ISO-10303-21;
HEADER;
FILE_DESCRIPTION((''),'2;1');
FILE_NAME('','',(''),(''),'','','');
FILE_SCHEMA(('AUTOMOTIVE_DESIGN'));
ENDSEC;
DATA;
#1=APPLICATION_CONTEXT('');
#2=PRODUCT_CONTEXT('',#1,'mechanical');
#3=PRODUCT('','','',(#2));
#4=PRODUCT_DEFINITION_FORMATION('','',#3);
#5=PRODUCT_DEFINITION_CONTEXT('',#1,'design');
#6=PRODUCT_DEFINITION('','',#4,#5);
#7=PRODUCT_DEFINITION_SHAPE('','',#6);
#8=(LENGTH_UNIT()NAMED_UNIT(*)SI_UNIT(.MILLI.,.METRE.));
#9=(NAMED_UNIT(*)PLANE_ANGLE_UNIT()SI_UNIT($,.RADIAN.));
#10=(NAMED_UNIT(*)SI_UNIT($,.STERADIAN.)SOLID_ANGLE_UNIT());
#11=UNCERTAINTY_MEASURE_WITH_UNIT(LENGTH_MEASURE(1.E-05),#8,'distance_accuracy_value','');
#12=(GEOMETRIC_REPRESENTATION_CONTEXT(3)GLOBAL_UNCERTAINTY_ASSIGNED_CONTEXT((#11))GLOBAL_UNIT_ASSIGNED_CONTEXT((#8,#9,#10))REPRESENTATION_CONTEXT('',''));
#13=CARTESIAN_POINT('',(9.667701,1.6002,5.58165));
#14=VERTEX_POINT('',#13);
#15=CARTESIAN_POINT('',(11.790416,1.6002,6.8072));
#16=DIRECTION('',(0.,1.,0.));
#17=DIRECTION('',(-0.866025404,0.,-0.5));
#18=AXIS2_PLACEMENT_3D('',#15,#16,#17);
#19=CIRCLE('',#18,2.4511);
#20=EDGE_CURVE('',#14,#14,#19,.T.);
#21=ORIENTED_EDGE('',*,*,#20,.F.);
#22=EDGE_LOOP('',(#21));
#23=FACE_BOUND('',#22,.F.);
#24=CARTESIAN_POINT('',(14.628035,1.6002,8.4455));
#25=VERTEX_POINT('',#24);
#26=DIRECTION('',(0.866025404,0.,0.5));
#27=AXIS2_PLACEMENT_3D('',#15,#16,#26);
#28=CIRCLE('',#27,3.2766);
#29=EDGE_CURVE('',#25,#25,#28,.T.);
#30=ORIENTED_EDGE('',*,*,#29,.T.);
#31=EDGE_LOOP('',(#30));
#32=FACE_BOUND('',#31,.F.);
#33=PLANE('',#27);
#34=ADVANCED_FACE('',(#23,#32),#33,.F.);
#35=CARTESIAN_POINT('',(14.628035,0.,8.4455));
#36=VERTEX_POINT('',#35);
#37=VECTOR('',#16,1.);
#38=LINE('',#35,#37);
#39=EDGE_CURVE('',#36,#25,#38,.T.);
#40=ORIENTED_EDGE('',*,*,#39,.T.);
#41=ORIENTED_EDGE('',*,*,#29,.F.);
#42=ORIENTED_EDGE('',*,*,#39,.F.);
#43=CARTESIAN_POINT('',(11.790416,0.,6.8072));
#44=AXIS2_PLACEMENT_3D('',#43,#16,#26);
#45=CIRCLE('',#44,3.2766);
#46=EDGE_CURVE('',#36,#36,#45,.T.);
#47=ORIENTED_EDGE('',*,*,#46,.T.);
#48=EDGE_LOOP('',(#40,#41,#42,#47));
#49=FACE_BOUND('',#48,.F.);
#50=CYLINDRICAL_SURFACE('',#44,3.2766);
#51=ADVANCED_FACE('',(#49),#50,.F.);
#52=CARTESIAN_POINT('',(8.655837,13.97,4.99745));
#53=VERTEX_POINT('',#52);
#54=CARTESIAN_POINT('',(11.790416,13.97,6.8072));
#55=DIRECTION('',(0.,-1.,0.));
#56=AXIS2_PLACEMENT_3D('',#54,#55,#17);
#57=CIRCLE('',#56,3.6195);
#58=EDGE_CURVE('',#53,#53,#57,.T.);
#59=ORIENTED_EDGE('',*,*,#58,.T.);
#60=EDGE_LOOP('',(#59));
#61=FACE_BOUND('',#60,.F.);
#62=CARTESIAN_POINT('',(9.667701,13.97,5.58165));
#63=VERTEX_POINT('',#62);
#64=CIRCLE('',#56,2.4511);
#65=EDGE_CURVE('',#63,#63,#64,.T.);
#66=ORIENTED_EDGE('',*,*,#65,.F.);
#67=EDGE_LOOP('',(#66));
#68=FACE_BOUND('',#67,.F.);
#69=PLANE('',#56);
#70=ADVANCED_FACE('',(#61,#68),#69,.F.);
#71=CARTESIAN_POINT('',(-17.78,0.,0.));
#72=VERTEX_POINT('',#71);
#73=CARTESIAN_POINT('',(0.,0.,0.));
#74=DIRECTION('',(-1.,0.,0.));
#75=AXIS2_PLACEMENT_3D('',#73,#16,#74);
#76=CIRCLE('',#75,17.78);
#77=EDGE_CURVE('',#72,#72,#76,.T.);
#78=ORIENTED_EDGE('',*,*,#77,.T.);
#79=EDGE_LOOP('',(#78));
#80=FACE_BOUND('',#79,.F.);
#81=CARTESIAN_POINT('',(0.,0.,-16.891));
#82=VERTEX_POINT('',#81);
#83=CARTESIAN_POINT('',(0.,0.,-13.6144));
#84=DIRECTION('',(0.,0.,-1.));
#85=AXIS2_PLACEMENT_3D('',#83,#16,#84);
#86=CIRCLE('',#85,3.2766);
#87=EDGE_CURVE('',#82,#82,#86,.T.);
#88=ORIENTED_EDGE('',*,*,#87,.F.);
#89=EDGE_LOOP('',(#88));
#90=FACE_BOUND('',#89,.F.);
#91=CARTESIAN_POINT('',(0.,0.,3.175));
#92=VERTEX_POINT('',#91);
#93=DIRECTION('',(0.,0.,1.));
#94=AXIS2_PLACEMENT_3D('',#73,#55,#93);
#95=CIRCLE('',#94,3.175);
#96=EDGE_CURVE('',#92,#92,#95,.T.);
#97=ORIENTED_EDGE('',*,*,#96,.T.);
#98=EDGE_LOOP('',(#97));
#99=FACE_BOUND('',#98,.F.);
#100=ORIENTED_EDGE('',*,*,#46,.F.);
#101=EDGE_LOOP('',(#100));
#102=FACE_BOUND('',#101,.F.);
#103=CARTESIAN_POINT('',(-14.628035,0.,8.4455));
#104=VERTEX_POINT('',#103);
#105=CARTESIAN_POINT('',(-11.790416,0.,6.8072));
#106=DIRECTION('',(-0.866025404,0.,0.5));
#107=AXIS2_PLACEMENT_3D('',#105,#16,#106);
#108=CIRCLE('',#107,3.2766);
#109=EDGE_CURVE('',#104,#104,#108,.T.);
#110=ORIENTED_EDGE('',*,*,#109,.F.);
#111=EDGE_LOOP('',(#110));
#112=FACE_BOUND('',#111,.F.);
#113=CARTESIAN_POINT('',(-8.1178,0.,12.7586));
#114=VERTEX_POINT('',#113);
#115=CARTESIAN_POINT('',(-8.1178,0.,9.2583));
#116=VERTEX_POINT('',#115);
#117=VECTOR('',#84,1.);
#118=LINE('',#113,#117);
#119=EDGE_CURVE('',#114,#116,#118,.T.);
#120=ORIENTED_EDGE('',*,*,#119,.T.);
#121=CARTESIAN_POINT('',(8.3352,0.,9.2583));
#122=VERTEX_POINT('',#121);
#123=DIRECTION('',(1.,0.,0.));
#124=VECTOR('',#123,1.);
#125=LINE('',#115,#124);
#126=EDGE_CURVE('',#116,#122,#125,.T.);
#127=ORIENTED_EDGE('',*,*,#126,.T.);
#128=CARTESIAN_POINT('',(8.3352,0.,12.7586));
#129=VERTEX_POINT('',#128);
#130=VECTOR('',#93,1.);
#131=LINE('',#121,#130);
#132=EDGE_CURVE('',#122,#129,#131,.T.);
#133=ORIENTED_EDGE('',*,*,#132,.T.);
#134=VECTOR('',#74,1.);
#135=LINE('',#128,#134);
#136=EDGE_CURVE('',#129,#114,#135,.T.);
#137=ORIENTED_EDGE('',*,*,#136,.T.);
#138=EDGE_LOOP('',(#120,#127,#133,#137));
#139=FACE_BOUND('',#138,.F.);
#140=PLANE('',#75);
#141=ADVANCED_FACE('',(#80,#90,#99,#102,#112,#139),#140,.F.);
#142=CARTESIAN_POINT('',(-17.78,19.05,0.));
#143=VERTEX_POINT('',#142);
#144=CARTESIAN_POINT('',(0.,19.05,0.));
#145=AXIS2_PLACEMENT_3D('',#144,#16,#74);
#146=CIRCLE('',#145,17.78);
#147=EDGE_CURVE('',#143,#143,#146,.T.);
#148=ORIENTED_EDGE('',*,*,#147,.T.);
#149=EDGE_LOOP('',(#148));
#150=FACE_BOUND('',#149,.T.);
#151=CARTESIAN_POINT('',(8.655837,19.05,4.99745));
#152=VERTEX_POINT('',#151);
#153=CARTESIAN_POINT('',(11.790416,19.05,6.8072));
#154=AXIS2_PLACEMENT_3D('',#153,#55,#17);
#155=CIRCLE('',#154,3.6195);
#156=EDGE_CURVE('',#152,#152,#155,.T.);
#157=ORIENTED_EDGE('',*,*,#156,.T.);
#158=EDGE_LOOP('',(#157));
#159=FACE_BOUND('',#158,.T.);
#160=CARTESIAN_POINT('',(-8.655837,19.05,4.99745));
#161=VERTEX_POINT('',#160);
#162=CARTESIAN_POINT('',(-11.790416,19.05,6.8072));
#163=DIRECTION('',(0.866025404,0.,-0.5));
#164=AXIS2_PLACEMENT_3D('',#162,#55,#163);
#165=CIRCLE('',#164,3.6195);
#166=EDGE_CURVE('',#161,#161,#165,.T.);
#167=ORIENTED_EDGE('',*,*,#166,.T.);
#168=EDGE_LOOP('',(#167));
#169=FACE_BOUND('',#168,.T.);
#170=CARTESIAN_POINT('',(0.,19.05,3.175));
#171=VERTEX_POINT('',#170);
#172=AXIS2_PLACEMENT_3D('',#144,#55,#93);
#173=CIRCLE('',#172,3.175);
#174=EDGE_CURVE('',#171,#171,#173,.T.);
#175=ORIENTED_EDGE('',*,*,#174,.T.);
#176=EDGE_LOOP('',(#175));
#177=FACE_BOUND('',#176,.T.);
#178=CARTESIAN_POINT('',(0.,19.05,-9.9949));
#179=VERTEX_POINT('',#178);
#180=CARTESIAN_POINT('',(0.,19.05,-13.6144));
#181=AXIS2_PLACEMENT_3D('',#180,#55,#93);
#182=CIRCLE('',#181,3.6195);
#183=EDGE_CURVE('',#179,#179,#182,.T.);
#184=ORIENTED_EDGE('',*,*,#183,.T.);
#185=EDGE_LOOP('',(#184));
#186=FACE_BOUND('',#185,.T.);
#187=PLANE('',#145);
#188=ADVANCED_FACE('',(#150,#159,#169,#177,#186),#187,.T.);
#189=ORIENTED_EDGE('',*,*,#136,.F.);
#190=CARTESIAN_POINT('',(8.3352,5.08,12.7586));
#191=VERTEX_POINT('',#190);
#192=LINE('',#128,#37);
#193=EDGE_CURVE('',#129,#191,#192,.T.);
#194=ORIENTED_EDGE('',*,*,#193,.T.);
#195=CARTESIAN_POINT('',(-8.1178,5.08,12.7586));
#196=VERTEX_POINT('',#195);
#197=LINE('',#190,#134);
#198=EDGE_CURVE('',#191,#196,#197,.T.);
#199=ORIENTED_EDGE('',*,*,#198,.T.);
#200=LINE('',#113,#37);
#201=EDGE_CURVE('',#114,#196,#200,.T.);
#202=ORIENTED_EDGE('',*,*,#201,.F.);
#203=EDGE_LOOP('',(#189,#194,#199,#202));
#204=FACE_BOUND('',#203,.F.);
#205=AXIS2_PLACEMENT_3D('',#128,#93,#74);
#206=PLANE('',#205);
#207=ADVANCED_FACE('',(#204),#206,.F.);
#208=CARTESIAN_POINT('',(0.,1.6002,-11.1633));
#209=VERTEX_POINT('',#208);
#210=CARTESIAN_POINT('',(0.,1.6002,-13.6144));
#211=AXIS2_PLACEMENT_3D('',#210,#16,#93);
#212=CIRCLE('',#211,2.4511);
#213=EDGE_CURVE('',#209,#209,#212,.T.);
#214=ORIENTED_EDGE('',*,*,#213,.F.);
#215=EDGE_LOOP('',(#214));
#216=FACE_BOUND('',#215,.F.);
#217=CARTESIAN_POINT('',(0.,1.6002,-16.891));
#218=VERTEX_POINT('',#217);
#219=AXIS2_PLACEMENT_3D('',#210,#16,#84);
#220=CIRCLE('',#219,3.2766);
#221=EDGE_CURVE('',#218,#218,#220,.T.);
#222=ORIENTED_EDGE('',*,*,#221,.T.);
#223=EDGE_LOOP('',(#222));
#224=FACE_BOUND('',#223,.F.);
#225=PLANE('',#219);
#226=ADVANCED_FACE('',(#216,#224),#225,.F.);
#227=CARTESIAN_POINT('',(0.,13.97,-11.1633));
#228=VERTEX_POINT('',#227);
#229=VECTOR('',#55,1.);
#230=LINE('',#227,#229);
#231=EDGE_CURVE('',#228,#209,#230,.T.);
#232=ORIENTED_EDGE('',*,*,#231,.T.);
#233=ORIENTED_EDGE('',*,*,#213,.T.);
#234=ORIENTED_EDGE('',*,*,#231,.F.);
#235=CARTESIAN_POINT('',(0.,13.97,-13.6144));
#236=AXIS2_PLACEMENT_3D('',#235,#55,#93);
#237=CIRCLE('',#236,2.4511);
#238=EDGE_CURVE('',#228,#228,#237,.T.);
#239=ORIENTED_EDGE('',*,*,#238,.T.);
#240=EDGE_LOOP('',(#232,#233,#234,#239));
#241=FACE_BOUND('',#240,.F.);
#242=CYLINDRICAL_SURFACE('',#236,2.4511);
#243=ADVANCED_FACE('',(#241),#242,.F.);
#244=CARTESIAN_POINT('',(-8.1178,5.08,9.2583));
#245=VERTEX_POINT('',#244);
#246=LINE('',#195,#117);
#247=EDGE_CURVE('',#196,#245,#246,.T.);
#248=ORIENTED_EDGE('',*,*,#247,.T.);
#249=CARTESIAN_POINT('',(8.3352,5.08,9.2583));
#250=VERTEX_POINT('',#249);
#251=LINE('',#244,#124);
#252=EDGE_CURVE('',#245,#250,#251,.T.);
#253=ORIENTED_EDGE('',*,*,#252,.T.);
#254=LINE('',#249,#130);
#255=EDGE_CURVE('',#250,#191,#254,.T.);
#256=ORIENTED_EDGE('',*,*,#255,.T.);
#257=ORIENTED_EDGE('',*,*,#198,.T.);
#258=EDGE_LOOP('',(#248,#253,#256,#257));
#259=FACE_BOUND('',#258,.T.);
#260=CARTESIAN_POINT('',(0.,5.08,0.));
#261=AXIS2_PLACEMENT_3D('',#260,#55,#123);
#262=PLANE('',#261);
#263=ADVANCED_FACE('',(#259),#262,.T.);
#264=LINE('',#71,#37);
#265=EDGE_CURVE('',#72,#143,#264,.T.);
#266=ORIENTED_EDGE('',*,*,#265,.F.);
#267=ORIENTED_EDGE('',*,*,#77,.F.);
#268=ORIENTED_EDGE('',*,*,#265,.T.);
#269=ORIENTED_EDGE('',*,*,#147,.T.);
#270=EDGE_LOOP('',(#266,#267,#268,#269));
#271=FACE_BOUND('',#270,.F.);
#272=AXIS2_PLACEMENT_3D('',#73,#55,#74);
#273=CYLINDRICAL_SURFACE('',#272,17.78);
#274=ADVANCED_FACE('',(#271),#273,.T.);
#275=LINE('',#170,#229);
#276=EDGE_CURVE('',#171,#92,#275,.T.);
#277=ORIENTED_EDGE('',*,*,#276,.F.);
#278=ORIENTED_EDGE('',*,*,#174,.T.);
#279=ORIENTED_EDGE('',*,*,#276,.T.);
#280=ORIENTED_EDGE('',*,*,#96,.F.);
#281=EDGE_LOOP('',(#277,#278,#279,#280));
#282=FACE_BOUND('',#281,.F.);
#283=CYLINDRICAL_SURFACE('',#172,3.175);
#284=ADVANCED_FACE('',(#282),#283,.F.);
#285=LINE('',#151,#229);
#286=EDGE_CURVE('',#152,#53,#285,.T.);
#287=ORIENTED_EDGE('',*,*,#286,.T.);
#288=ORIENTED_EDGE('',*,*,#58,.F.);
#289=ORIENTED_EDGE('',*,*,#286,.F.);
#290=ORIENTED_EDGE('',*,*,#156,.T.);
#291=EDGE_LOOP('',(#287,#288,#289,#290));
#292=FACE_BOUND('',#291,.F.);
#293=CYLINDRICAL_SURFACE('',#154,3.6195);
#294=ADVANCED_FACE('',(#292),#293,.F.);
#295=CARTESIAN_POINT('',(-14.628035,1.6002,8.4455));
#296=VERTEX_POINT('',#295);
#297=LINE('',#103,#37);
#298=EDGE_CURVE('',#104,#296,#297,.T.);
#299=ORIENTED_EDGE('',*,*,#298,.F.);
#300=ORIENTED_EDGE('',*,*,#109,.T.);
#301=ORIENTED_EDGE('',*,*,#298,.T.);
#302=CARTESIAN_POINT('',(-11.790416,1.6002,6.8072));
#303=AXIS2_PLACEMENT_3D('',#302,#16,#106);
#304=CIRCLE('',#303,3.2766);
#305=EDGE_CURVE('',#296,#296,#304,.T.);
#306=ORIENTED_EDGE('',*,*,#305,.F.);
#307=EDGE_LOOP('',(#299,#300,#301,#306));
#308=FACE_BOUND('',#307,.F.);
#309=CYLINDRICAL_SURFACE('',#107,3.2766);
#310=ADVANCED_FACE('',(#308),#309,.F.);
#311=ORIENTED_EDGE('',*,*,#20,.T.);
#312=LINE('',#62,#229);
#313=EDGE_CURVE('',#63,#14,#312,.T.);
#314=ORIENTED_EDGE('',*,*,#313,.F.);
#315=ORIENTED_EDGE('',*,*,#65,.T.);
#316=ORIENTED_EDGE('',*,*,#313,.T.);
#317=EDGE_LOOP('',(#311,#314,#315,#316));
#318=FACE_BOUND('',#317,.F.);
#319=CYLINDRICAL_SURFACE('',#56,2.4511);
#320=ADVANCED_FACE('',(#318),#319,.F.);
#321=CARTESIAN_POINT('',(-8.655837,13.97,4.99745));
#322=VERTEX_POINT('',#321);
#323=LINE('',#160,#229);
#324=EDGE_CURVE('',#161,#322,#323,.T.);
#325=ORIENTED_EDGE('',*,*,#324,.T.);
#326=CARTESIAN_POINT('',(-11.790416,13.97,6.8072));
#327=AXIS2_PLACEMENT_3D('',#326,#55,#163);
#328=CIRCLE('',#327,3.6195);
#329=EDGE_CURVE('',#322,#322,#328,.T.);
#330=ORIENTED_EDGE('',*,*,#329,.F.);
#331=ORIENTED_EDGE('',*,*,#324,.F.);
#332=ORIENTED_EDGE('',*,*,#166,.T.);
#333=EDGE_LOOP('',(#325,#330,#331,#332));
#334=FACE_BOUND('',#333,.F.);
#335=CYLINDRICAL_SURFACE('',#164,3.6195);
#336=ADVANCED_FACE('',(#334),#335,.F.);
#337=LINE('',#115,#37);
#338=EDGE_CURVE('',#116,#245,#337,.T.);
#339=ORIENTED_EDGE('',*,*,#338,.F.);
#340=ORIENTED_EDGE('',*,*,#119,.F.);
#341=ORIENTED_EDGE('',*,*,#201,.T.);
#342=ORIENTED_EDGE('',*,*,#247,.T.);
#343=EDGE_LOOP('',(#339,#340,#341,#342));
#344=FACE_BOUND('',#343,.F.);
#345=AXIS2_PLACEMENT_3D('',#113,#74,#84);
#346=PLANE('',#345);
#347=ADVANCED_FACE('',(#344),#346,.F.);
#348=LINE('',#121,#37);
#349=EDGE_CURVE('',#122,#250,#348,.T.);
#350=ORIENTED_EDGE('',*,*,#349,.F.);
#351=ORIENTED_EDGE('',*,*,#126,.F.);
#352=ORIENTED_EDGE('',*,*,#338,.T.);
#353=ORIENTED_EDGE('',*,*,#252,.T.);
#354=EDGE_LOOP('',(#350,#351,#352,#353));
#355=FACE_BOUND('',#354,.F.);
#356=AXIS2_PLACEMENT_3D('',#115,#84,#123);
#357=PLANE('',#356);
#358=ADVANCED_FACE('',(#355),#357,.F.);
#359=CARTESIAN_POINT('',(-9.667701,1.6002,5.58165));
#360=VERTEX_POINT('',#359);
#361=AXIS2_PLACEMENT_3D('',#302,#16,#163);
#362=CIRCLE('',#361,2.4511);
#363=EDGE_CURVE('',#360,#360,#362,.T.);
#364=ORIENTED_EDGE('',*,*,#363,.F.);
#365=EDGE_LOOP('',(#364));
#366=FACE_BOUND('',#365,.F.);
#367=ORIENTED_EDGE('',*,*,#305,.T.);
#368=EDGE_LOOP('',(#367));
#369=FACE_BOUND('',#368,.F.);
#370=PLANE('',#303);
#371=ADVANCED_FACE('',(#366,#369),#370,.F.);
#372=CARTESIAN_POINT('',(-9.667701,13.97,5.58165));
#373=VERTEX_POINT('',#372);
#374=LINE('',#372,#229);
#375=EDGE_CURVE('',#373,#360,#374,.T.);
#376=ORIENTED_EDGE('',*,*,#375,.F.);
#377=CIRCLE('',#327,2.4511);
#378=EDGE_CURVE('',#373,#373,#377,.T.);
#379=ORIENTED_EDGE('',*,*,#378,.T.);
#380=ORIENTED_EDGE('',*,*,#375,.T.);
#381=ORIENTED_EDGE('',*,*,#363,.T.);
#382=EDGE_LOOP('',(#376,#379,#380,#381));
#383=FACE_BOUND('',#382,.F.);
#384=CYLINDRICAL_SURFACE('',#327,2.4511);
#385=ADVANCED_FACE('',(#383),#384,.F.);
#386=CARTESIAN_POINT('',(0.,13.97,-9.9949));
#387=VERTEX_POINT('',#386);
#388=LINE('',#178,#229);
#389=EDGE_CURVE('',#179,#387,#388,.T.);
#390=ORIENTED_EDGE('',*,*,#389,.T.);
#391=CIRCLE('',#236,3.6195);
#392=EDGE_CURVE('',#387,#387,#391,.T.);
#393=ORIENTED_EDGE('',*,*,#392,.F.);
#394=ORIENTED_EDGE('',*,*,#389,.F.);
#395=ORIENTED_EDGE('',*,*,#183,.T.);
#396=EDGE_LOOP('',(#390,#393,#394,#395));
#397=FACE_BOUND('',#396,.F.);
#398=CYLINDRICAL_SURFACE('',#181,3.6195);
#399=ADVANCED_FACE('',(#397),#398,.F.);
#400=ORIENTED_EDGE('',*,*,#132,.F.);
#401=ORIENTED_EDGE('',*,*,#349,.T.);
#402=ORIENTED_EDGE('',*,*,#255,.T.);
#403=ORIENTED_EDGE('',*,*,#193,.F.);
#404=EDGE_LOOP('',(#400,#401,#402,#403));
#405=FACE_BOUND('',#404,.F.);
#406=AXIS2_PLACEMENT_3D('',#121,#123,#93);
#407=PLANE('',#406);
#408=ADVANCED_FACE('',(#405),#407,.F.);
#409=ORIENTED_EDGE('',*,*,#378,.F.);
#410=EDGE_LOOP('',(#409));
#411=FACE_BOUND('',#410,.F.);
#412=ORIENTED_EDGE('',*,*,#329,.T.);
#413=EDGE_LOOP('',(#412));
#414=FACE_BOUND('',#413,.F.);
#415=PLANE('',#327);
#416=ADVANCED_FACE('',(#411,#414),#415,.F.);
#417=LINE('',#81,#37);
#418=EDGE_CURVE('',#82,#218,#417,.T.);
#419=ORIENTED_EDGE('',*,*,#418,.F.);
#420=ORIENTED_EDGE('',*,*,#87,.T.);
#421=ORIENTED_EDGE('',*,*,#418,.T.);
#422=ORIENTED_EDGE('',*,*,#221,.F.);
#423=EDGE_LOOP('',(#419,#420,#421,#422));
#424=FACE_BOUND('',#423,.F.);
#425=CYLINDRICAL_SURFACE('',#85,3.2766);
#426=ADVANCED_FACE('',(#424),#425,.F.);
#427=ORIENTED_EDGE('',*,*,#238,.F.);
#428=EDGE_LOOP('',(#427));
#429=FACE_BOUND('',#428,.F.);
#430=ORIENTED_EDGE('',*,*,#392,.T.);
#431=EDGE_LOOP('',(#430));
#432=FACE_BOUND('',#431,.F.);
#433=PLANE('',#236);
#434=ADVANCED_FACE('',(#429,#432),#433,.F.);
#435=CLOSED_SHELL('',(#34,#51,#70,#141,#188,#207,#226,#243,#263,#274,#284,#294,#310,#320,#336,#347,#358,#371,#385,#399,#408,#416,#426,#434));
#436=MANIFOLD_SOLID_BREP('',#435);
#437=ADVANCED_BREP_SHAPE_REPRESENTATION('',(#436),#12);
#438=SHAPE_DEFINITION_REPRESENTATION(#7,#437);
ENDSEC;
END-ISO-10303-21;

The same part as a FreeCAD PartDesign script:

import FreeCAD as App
import Part
import Sketcher

V = App.Vector
Q = App.Units.Quantity

doc = App.newDocument("Part")
body = doc.addObject("PartDesign::Body", "Body")

sketch1 = body.newObject("Sketcher::SketchObject", "Sketch")
sketch1.AttachmentSupport = (doc.getObject("XZ_Plane"), [""])
sketch1.MapMode = "FlatFace"
sketch1.addGeometry(Part.Circle(V(0, 0, 0), V(0, 0, 1), 17.78), False)
sketch1.addConstraint(Sketcher.Constraint("Coincident", 0, 3, -1, 1))
sketch1.addConstraint(Sketcher.Constraint("Diameter", 0, Q("1.4 in")))
pad1 = body.newObject("PartDesign::Pad", "Pad")
pad1.Profile = sketch1
pad1.Length = Q("0.75 in")
pad1.Reversed = True

sketch2 = body.newObject("Sketcher::SketchObject", "Sketch001")
sketch2.AttachmentSupport = (doc.getObject("XZ_Plane"), [""])
sketch2.MapMode = "FlatFace"
sketch2.AttachmentOffset = App.Placement(V(0, 0, -0.75 * 25.4), App.Rotation())
sketch2.addGeometry(Part.Circle(V(0, -13.6144, 0), V(0, 0, 1), 2.4511), False)
sketch2.addConstraint(Sketcher.Constraint("PointOnObject", 0, 3, -2))
sketch2.addConstraint(Sketcher.Constraint("Diameter", 0, Q("0.193 in")))
sketch2.addConstraint(Sketcher.Constraint("DistanceY", 0, 3, -1, 1, Q("0.536 in")))
doc.recompute()
hole = body.newObject("PartDesign::Hole", "Hole")
hole.Profile = sketch2
hole.ThreadType = "None"
hole.Diameter = Q("0.193 in")
hole.DepthType = "ThroughAll"
hole.HoleCutType = "Counterbore"
hole.HoleCutDiameter = Q("0.285 in")
hole.HoleCutDepth = Q("0.2 in")
hole.Reversed = True

sketch3 = body.newObject("Sketcher::SketchObject", "Sketch002")
sketch3.AttachmentSupport = (doc.getObject("XZ_Plane"), [""])
sketch3.MapMode = "FlatFace"
sketch3.addGeometry(Part.Circle(V(0, -13.6144, 0), V(0, 0, 1), 2.4511), False)
sketch3.addConstraint(Sketcher.Constraint("PointOnObject", 0, 3, -2))
sketch3.addConstraint(Sketcher.Constraint("Diameter", 0, Q("0.193 in")))
sketch3.addConstraint(Sketcher.Constraint("DistanceY", 0, 3, -1, 1, Q("0.536 in")))
doc.recompute()
hole2 = body.newObject("PartDesign::Hole", "Hole001")
hole2.Profile = sketch3
hole2.ThreadType = "None"
hole2.Diameter = Q("0.193 in")
hole2.DepthType = "Dimension"
hole2.Depth = Q("0.25 in")
hole2.DrillPoint = "Flat"
hole2.HoleCutType = "Counterbore"
hole2.HoleCutDiameter = Q("0.258 in")
hole2.HoleCutDepth = Q("0.063 in")
doc.recompute()

polarpattern = body.newObject("PartDesign::PolarPattern", "PolarPattern")
polarpattern.Originals = [hole, hole2]
polarpattern.Axis = (doc.getObject("Y_Axis"), [""])
polarpattern.Angle = 360
polarpattern.Occurrences = 3
body.Tip = polarpattern

sketch4 = body.newObject("Sketcher::SketchObject", "Sketch003")
sketch4.AttachmentSupport = (doc.getObject("XZ_Plane"), [""])
sketch4.MapMode = "FlatFace"
sketch4.AttachmentOffset = App.Placement(V(0, 0, -0.75 * 25.4), App.Rotation())
sketch4.addGeometry(Part.Circle(V(0, 0, 0), V(0, 0, 1), 3.175), False)
sketch4.addConstraint(Sketcher.Constraint("Coincident", 0, 3, -1, 1))
sketch4.addConstraint(Sketcher.Constraint("Diameter", 0, Q("0.25 in")))
doc.recompute()
hole3 = body.newObject("PartDesign::Hole", "Hole002")
hole3.Profile = sketch4
hole3.ThreadType = "None"
hole3.Diameter = Q("0.25 in")
hole3.DepthType = "ThroughAll"
hole3.Reversed = True

sketch5 = body.newObject("Sketcher::SketchObject", "Sketch004")
sketch5.AttachmentSupport = (doc.getObject("XZ_Plane"), [""])
sketch5.MapMode = "FlatFace"
sketch5.addGeometry(Part.LineSegment(V(8.3352, 9.2583, 0), V(8.3352, 12.7586, 0)), False)
sketch5.addGeometry(Part.LineSegment(V(8.3352, 12.7586, 0), V(-8.1178, 12.7586, 0)), False)
sketch5.addGeometry(Part.LineSegment(V(-8.1178, 12.7586, 0), V(-8.1178, 9.2583, 0)), False)
sketch5.addGeometry(Part.LineSegment(V(-8.1178, 9.2583, 0), V(8.3352, 9.2583, 0)), False)
sketch5.addConstraint(Sketcher.Constraint("Coincident", 0, 2, 1, 1))
sketch5.addConstraint(Sketcher.Constraint("Coincident", 1, 2, 2, 1))
sketch5.addConstraint(Sketcher.Constraint("Coincident", 2, 2, 3, 1))
sketch5.addConstraint(Sketcher.Constraint("Coincident", 3, 2, 0, 1))
sketch5.addConstraint(Sketcher.Constraint("Vertical", 0))
sketch5.addConstraint(Sketcher.Constraint("Horizontal", 1))
sketch5.addConstraint(Sketcher.Constraint("Vertical", 2))
sketch5.addConstraint(Sketcher.Constraint("Horizontal", 3))
sketch5.addConstraint(Sketcher.Constraint("DistanceY", 0, 1, 0, 2, Q("0.1378 in")))
sketch5.addConstraint(Sketcher.Constraint("DistanceX", 1, 2, 1, 1, Q("16.453 mm")))
sketch5.addConstraint(Sketcher.Constraint("DistanceY", -1, 1, 0, 2, Q("0.5023 in")))
sketch5.addConstraint(Sketcher.Constraint("DistanceX", 1, 2, -1, 1, Q("0.3196 in")))
pocket1 = body.newObject("PartDesign::Pocket", "Pocket")
pocket1.Profile = sketch5
pocket1.Length = Q("0.2 in")

doc.recompute()
